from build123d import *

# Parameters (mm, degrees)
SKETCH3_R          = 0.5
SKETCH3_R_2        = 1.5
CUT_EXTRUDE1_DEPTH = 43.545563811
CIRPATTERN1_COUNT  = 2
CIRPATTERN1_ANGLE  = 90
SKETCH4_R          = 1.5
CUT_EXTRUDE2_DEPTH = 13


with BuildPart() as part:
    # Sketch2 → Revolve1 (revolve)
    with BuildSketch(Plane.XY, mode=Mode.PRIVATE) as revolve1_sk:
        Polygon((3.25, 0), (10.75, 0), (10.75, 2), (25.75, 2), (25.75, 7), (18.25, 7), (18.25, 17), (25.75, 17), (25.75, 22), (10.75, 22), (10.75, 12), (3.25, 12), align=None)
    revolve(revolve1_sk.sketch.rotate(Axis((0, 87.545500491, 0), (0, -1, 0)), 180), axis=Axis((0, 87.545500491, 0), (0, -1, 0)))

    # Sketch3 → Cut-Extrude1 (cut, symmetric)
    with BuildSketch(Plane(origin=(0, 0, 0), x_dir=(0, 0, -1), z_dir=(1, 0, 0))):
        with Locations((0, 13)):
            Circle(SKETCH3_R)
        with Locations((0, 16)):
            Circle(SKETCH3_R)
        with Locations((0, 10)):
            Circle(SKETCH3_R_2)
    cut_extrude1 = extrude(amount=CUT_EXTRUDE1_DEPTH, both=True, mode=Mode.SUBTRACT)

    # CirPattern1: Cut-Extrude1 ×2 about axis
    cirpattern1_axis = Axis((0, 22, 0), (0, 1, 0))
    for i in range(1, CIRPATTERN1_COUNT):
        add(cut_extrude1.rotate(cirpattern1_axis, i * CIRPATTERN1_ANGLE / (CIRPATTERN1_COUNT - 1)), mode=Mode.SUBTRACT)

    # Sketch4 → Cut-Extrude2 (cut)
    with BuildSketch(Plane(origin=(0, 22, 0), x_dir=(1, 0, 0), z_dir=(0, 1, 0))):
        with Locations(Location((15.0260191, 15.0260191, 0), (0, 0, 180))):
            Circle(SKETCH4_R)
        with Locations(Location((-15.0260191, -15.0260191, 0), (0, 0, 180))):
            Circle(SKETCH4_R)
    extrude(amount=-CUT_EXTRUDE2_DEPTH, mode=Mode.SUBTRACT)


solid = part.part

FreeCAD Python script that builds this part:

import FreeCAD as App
import Part
import Sketcher

doc = App.newDocument("Part")
body = doc.addObject("PartDesign::Body", "Body")

sketch1 = body.newObject("Sketcher::SketchObject", "Sketch")
sketch1.AttachmentSupport = (doc.getObject("XY_Plane"), [""])
sketch1.MapMode = "FlatFace"
sketch1.addGeometry(Part.LineSegment(App.Vector(3.2, 0, 0), App.Vector(10.8, 0, 0)), False)
sketch1.addGeometry(Part.LineSegment(App.Vector(10.8, 0, 0), App.Vector(10.8, 2, 0)), False)
sketch1.addGeometry(Part.LineSegment(App.Vector(10.8, 2, 0), App.Vector(25.8, 2, 0)), False)
sketch1.addGeometry(Part.LineSegment(App.Vector(25.8, 2, 0), App.Vector(25.8, 7, 0)), False)
sketch1.addGeometry(Part.LineSegment(App.Vector(25.8, 7, 0), App.Vector(18.2, 7, 0)), False)
sketch1.addGeometry(Part.LineSegment(App.Vector(18.2, 7, 0), App.Vector(18.2, 17, 0)), False)
sketch1.addGeometry(Part.LineSegment(App.Vector(18.2, 17, 0), App.Vector(25.8, 17, 0)), False)
sketch1.addGeometry(Part.LineSegment(App.Vector(25.8, 17, 0), App.Vector(25.8, 22, 0)), False)
sketch1.addGeometry(Part.LineSegment(App.Vector(25.8, 22, 0), App.Vector(10.8, 22, 0)), False)
sketch1.addGeometry(Part.LineSegment(App.Vector(10.8, 22, 0), App.Vector(10.8, 12, 0)), False)
sketch1.addGeometry(Part.LineSegment(App.Vector(10.8, 12, 0), App.Vector(3.2, 12, 0)), False)
sketch1.addGeometry(Part.LineSegment(App.Vector(3.2, 12, 0), App.Vector(3.2, 0, 0)), False)
sketch1.addConstraint(Sketcher.Constraint("Coincident", 0, 2, 1, 1))
sketch1.addConstraint(Sketcher.Constraint("Coincident", 1, 2, 2, 1))
sketch1.addConstraint(Sketcher.Constraint("Coincident", 2, 2, 3, 1))
sketch1.addConstraint(Sketcher.Constraint("Coincident", 3, 2, 4, 1))
sketch1.addConstraint(Sketcher.Constraint("Coincident", 4, 2, 5, 1))
sketch1.addConstraint(Sketcher.Constraint("Coincident", 5, 2, 6, 1))
sketch1.addConstraint(Sketcher.Constraint("Coincident", 6, 2, 7, 1))
sketch1.addConstraint(Sketcher.Constraint("Coincident", 7, 2, 8, 1))
sketch1.addConstraint(Sketcher.Constraint("Coincident", 8, 2, 9, 1))
sketch1.addConstraint(Sketcher.Constraint("Coincident", 9, 2, 10, 1))
sketch1.addConstraint(Sketcher.Constraint("Coincident", 10, 2, 11, 1))
sketch1.addConstraint(Sketcher.Constraint("Coincident", 11, 2, 0, 1))
sketch1.addConstraint(Sketcher.Constraint("Horizontal", 0))
sketch1.addConstraint(Sketcher.Constraint("Vertical", 1))
sketch1.addConstraint(Sketcher.Constraint("Horizontal", 2))
sketch1.addConstraint(Sketcher.Constraint("Vertical", 3))
sketch1.addConstraint(Sketcher.Constraint("Horizontal", 4))
sketch1.addConstraint(Sketcher.Constraint("Vertical", 5))
sketch1.addConstraint(Sketcher.Constraint("Horizontal", 6))
sketch1.addConstraint(Sketcher.Constraint("Vertical", 7))
sketch1.addConstraint(Sketcher.Constraint("Horizontal", 8))
sketch1.addConstraint(Sketcher.Constraint("Vertical", 9))
sketch1.addConstraint(Sketcher.Constraint("Horizontal", 10))
sketch1.addConstraint(Sketcher.Constraint("Vertical", 11))
sketch1.addConstraint(Sketcher.Constraint("PointOnObject", 0, 2, -1))
sketch1.addConstraint(Sketcher.Constraint("Vertical", 3, 2, 6, 2))
sketch1.addConstraint(Sketcher.Constraint("Vertical", 1, 2, 8, 2))
sketch1.addConstraint(Sketcher.Constraint("Equal", 0, 4))
sketch1.addConstraint(Sketcher.Constraint("Equal", 3, 7))
sketch1.addConstraint(Sketcher.Constraint("Equal", 5, 9))
sketch1.addConstraint(Sketcher.Constraint("DistanceX", 2, 1, 2, 2, 15.0))
sketch1.addConstraint(Sketcher.Constraint("DistanceY", 1, 1, 1, 2, 2.0))
sketch1.addConstraint(Sketcher.Constraint("DistanceY", 3, 1, 3, 2, 5.0))
sketch1.addConstraint(Sketcher.Constraint("DistanceY", 5, 1, 5, 2, 10.0))
sketch1.addConstraint(Sketcher.Constraint("DistanceX", 0, 1, 0, 2, 7.5))
sketch1.addConstraint(Sketcher.Constraint("DistanceX", -1, 1, 0, 2, 10.75))
revolution = body.newObject("PartDesign::Revolution", "Revolution")
revolution.Profile = sketch1
revolution.ReferenceAxis = (sketch1, ["V_Axis"])
revolution.Angle = 360

sketch2 = body.newObject("Sketcher::SketchObject", "Sketch001")
sketch2.AttachmentSupport = (doc.getObject("YZ_Plane"), [""])
sketch2.MapMode = "FlatFace"
sketch2.addGeometry(Part.Circle(App.Vector(13, 0, 0), App.Vector(0, 0, 1), 0.5), False)
sketch2.addGeometry(Part.Circle(App.Vector(16, 0, 0), App.Vector(0, 0, 1), 0.5), False)
sketch2.addGeometry(Part.Circle(App.Vector(10, 0, 0), App.Vector(0, 0, 1), 1.5), False)
sketch2.addConstraint(Sketcher.Constraint("Equal", 0, 1))
sketch2.addConstraint(Sketcher.Constraint("PointOnObject", 0, 3, -1))
sketch2.addConstraint(Sketcher.Constraint("PointOnObject", 1, 3, -1))
sketch2.addConstraint(Sketcher.Constraint("PointOnObject", 2, 3, -1))
sketch2.addConstraint(Sketcher.Constraint("Diameter", 0, 1.0))
sketch2.addConstraint(Sketcher.Constraint("Diameter", 2, 3.0))
sketch2.addConstraint(Sketcher.Constraint("DistanceX", -1, 1, 0, 3, 13.0))
sketch2.addConstraint(Sketcher.Constraint("DistanceX", -1, 1, 1, 3, 16.0))
sketch2.addConstraint(Sketcher.Constraint("DistanceX", -1, 1, 2, 3, 10.0))
pocket1 = body.newObject("PartDesign::Pocket", "Pocket")
pocket1.Profile = sketch2
pocket1.Length = 87.091128
pocket1.Midplane = True
doc.recompute()

polarpattern = body.newObject("PartDesign::PolarPattern", "PolarPattern")
polarpattern.Originals = [pocket1]
polarpattern.Axis = (doc.getObject("Y_Axis"), [""])
polarpattern.Angle = 90
polarpattern.Occurrences = 2
body.Tip = polarpattern

sketch3 = body.newObject("Sketcher::SketchObject", "Sketch002")
sketch3.AttachmentSupport = (doc.getObject("XZ_Plane"), [""])
sketch3.MapMode = "FlatFace"
sketch3.AttachmentOffset = App.Placement(App.Vector(0, 0, -22), App.Rotation())
sketch3.addGeometry(Part.Circle(App.Vector(15, -15, 0), App.Vector(0, 0, 1), 1.5), False)
sketch3.addGeometry(Part.Circle(App.Vector(-15, 15, 0), App.Vector(0, 0, 1), 1.5), False)
sketch3.addConstraint(Sketcher.Constraint("Equal", 0, 1))
sketch3.addConstraint(Sketcher.Constraint("Symmetric", 0, 3, 1, 3, -1, 1))
sketch3.addConstraint(Sketcher.Constraint("Diameter", 0, 3.0))
sketch3.addConstraint(Sketcher.Constraint("DistanceX", -1, 1, 0, 3, 15.026019))
sketch3.addConstraint(Sketcher.Constraint("DistanceY", 0, 3, -1, 1, 15.026019))
pocket2 = body.newObject("PartDesign::Pocket", "Pocket001")
pocket2.Profile = sketch3
pocket2.Length = 13
pocket2.Reversed = True

doc.recompute()
